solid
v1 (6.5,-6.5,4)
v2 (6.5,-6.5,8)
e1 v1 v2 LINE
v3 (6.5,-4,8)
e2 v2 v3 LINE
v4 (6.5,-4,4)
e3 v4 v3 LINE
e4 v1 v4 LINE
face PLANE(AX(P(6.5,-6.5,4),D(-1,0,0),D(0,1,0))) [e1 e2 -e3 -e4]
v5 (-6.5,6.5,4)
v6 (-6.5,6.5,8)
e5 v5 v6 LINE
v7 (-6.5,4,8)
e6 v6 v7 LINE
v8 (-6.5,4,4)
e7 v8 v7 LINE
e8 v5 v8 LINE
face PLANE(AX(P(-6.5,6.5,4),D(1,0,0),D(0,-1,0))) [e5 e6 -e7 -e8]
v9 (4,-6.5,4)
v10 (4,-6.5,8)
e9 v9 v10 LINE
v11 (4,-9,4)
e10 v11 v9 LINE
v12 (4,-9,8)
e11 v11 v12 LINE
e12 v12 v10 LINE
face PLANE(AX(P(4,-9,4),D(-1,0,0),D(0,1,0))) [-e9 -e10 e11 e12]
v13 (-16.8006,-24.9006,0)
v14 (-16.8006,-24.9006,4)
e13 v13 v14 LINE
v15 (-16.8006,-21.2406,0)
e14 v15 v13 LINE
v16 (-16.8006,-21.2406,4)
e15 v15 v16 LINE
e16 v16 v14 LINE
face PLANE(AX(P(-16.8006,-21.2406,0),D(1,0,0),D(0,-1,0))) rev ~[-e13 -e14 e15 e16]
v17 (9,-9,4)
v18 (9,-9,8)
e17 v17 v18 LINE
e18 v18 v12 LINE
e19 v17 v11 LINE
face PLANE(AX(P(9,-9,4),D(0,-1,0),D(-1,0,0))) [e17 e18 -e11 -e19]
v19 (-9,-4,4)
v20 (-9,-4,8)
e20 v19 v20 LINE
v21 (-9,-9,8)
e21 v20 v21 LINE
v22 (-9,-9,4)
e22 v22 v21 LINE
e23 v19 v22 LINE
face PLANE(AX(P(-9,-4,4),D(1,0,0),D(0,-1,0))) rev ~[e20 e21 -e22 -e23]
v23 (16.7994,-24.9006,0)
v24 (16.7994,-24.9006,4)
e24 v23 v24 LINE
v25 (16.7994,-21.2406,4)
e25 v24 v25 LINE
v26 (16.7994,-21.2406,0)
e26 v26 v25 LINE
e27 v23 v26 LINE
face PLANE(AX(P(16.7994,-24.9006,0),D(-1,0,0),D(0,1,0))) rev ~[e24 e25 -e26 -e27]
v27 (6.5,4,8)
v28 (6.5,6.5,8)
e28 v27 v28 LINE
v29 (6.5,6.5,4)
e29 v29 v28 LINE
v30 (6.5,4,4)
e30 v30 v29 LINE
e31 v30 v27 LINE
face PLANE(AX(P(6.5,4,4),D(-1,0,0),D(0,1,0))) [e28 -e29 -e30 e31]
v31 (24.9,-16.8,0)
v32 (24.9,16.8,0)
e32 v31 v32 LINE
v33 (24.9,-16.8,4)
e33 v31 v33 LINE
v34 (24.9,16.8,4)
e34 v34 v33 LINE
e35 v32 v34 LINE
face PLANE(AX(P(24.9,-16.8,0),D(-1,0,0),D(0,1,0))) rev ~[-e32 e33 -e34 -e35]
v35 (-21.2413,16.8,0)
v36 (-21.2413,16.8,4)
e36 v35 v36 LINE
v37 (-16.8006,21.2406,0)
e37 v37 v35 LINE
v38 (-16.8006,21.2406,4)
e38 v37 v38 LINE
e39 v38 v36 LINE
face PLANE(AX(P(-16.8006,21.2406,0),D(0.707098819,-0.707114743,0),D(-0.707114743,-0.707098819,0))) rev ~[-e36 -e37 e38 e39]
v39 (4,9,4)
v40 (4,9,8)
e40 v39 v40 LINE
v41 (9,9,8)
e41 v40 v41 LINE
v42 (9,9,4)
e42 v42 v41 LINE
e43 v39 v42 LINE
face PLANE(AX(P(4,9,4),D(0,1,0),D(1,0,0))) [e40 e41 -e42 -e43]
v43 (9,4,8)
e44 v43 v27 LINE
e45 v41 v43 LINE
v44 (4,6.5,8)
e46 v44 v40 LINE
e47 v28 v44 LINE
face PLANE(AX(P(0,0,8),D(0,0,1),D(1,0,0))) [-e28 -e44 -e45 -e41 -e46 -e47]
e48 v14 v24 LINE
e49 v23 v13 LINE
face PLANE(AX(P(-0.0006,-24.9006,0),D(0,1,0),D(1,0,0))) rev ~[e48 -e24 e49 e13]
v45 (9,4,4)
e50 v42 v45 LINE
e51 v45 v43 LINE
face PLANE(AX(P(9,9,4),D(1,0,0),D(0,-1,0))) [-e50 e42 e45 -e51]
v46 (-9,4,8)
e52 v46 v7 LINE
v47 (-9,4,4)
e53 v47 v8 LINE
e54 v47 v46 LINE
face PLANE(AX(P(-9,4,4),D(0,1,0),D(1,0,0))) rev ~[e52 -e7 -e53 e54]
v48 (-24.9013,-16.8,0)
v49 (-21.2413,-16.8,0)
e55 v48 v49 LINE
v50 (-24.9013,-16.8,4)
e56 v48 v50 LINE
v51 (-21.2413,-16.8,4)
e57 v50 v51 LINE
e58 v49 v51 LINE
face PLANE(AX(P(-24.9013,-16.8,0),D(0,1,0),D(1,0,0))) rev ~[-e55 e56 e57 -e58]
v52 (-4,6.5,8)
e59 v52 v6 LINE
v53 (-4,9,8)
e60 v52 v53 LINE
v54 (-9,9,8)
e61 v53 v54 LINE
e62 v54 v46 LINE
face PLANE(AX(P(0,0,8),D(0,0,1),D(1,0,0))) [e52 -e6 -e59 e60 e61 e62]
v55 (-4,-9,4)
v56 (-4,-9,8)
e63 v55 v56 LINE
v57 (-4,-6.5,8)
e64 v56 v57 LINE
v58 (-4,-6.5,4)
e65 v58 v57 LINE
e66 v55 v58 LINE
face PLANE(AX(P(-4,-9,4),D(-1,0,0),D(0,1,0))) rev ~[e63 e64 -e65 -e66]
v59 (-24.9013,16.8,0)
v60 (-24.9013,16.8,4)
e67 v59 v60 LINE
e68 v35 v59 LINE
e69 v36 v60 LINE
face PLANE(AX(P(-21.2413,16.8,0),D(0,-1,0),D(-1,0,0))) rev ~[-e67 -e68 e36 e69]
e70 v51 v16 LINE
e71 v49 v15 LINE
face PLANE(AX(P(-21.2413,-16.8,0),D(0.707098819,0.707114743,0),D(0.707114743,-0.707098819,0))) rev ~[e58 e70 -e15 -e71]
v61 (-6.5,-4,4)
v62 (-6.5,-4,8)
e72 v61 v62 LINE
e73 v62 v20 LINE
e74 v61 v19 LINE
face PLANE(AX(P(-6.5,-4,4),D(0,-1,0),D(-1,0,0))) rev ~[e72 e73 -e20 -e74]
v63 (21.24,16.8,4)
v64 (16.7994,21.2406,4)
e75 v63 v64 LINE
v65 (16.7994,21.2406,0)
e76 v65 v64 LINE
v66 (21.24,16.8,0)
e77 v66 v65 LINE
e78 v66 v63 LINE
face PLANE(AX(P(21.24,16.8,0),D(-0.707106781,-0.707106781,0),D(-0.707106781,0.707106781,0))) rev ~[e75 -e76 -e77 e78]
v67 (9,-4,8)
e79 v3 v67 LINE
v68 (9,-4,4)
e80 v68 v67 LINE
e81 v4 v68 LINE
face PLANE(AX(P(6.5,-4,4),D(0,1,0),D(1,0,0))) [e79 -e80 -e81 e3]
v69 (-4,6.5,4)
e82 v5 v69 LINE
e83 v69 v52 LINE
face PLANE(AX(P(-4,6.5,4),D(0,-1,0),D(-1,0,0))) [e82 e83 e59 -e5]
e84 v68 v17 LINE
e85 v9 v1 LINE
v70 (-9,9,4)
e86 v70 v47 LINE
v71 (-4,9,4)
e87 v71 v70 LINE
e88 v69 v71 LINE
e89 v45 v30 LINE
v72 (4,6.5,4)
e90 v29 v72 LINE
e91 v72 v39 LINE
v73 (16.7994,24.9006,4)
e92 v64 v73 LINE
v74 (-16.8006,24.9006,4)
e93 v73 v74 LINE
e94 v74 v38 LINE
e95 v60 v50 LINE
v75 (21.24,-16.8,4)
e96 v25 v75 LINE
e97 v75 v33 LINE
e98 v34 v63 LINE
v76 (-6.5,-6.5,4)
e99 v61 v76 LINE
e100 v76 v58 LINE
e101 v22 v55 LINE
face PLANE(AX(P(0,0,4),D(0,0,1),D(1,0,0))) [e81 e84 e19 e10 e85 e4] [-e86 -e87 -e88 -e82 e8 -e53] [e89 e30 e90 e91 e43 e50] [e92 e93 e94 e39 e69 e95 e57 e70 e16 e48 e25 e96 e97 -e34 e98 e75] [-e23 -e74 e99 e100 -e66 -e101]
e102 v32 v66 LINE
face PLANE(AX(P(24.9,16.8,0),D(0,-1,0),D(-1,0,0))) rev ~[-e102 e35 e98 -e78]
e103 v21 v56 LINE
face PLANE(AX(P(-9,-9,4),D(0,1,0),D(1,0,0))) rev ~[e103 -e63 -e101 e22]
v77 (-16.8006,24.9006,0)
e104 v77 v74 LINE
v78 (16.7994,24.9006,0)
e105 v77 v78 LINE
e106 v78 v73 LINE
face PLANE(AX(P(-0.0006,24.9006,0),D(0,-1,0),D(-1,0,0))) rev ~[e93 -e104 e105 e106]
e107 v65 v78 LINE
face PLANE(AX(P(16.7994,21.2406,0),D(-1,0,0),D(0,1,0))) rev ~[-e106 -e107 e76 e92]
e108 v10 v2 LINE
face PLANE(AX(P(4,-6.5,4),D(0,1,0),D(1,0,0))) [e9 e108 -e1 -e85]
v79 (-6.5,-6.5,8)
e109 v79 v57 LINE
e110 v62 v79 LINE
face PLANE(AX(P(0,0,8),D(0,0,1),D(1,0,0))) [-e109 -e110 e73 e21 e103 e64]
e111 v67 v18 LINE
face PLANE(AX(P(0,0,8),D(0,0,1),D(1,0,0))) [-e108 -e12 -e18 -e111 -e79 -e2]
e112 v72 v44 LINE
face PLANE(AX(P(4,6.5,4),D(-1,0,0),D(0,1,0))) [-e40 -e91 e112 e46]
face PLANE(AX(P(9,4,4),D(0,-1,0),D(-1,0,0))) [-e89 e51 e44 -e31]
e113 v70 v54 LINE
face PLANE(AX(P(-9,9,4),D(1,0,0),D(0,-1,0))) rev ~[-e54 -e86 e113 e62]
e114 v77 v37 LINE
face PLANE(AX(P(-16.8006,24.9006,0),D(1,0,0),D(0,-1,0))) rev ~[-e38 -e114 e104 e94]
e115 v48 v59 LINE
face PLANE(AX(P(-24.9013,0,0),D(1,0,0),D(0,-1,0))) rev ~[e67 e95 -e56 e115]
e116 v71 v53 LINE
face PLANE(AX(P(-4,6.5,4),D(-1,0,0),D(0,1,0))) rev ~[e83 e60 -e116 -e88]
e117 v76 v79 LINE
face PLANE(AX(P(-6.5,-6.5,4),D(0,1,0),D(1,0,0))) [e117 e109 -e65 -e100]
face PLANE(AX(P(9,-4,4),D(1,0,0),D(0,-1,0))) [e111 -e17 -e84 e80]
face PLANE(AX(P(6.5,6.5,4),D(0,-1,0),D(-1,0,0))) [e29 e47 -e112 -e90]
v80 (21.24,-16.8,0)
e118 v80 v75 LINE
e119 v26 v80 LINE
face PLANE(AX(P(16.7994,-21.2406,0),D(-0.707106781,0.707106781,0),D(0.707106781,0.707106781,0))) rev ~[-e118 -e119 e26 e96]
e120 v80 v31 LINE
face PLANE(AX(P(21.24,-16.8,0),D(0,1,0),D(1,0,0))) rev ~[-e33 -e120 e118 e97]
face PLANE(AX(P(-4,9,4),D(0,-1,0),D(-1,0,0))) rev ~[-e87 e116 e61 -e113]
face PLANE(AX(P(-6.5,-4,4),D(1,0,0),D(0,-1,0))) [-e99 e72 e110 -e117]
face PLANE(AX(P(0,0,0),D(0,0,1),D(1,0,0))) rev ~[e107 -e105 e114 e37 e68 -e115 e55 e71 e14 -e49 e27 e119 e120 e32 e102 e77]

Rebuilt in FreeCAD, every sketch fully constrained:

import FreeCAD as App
import Part
import Sketcher

doc = App.newDocument("Part")
params = doc.addObject("Spreadsheet::Sheet", "Params")
for row, (alias, value) in enumerate([
    ("sketch1_width", "33.6 mm"),
    ("sketch1_width2", "3.66 mm"),
    ("sketch1_length", "6.28 mm"),
    ("pad1_length", "4 mm"),
    ("sketch2_width", "5 mm"),
    ("pad2_length", "4 mm"),
], start=1):
    params.set(f"A{row}", alias)
    params.set(f"B{row}", "=" + value)
    params.setAlias(f"B{row}", alias)

body = doc.addObject("PartDesign::Body", "Body")

sketch1 = body.newObject("Sketcher::SketchObject", "Sketch")
sketch1.AttachmentSupport = (doc.getObject("XY_Plane"), [""])
sketch1.MapMode = "FlatFace"
sketch1.addGeometry(Part.LineSegment(App.Vector(24.9, -16.8, 0), App.Vector(24.9, 16.8, 0)), False)
sketch1.addGeometry(Part.LineSegment(App.Vector(24.9, 16.8, 0), App.Vector(21.24, 16.8, 0)), False)
sketch1.addGeometry(Part.LineSegment(App.Vector(21.24, 16.8, 0), App.Vector(16.7994, 21.2406, 0)), False)
sketch1.addGeometry(Part.LineSegment(App.Vector(16.7994, 21.2406, 0), App.Vector(16.7994, 24.9006, 0)), False)
sketch1.addGeometry(Part.LineSegment(App.Vector(16.7994, 24.9006, 0), App.Vector(-16.8006, 24.9006, 0)), False)
sketch1.addGeometry(Part.LineSegment(App.Vector(-16.8006, 24.9006, 0), App.Vector(-16.8006, 21.2406, 0)), False)
sketch1.addGeometry(Part.LineSegment(App.Vector(-16.8006, 21.2406, 0), App.Vector(-21.2413, 16.8, 0)), False)
sketch1.addGeometry(Part.LineSegment(App.Vector(-21.2413, 16.8, 0), App.Vector(-24.9013, 16.8, 0)), False)
sketch1.addGeometry(Part.LineSegment(App.Vector(-24.9013, 16.8, 0), App.Vector(-24.9013, -16.8, 0)), False)
sketch1.addGeometry(Part.LineSegment(App.Vector(-24.9013, -16.8, 0), App.Vector(-21.2413, -16.8, 0)), False)
sketch1.addGeometry(Part.LineSegment(App.Vector(-21.2413, -16.8, 0), App.Vector(-16.8006, -21.2406, 0)), False)
sketch1.addGeometry(Part.LineSegment(App.Vector(-16.8006, -21.2406, 0), App.Vector(-16.8006, -24.9006, 0)), False)
sketch1.addGeometry(Part.LineSegment(App.Vector(-16.8006, -24.9006, 0), App.Vector(16.7994, -24.9006, 0)), False)
sketch1.addGeometry(Part.LineSegment(App.Vector(16.7994, -24.9006, 0), App.Vector(16.7994, -21.2406, 0)), False)
sketch1.addGeometry(Part.LineSegment(App.Vector(16.7994, -21.2406, 0), App.Vector(21.24, -16.8, 0)), False)
sketch1.addGeometry(Part.LineSegment(App.Vector(21.24, -16.8, 0), App.Vector(24.9, -16.8, 0)), False)
sketch1.addConstraint(Sketcher.Constraint("Coincident", 0, 2, 1, 1))
sketch1.addConstraint(Sketcher.Constraint("Coincident", 1, 2, 2, 1))
sketch1.addConstraint(Sketcher.Constraint("Coincident", 2, 2, 3, 1))
sketch1.addConstraint(Sketcher.Constraint("Coincident", 3, 2, 4, 1))
sketch1.addConstraint(Sketcher.Constraint("Coincident", 4, 2, 5, 1))
sketch1.addConstraint(Sketcher.Constraint("Coincident", 5, 2, 6, 1))
sketch1.addConstraint(Sketcher.Constraint("Coincident", 6, 2, 7, 1))
sketch1.addConstraint(Sketcher.Constraint("Coincident", 7, 2, 8, 1))
sketch1.addConstraint(Sketcher.Constraint("Coincident", 8, 2, 9, 1))
sketch1.addConstraint(Sketcher.Constraint("Coincident", 9, 2, 10, 1))
sketch1.addConstraint(Sketcher.Constraint("Coincident", 10, 2, 11, 1))
sketch1.addConstraint(Sketcher.Constraint("Coincident", 11, 2, 12, 1))
sketch1.addConstraint(Sketcher.Constraint("Coincident", 12, 2, 13, 1))
sketch1.addConstraint(Sketcher.Constraint("Coincident", 13, 2, 14, 1))
sketch1.addConstraint(Sketcher.Constraint("Coincident", 14, 2, 15, 1))
sketch1.addConstraint(Sketcher.Constraint("Coincident", 15, 2, 0, 1))
sketch1.addConstraint(Sketcher.Constraint("Vertical", 0))
sketch1.addConstraint(Sketcher.Constraint("Horizontal", 1))
sketch1.addConstraint(Sketcher.Constraint("Vertical", 3))
sketch1.addConstraint(Sketcher.Constraint("Horizontal", 4))
sketch1.addConstraint(Sketcher.Constraint("Vertical", 5))
sketch1.addConstraint(Sketcher.Constraint("Horizontal", 7))
sketch1.addConstraint(Sketcher.Constraint("Vertical", 8))
sketch1.addConstraint(Sketcher.Constraint("Horizontal", 9))
sketch1.addConstraint(Sketcher.Constraint("Vertical", 11))
sketch1.addConstraint(Sketcher.Constraint("Horizontal", 12))
sketch1.addConstraint(Sketcher.Constraint("Vertical", 13))
sketch1.addConstraint(Sketcher.Constraint("Horizontal", 15))
sketch1.addConstraint(Sketcher.Constraint("Symmetric", 6, 2, 9, 2, -1))
sketch1.addConstraint(Sketcher.Constraint("Symmetric", 5, 2, 10, 2, -1))
sketch1.addConstraint(Sketcher.Constraint("Symmetric", 3, 2, 12, 2, -1))
sketch1.addConstraint(Sketcher.Constraint("Symmetric", 1, 2, 14, 2, -1))
sketch1.addConstraint(Sketcher.Constraint("Perpendicular", 2, 6))
sketch1.addConstraint(Sketcher.Constraint("Perpendicular", 6, 10))
sketch1.addConstraint(Sketcher.Constraint("Perpendicular", 10, 14))
sketch1.addConstraint(Sketcher.Constraint("Horizontal", 2, 2, 5, 2))
sketch1.addConstraint(Sketcher.Constraint("Horizontal", 1, 2, 6, 2))
sketch1.addConstraint(Sketcher.Constraint("Equal", 1, 7))
sketch1.addConstraint(Sketcher.Constraint("Equal", 12, 0))
sketch1.addConstraint(Sketcher.Constraint("Equal", 15, 3))
sketch1.addConstraint(Sketcher.Constraint("DistanceX", 4, 2, 4, 1, 33.6))
sketch1.addConstraint(Sketcher.Constraint("DistanceX", 1, 2, 1, 1, 3.66))
sketch1.addConstraint(Sketcher.Constraint("DistanceX", -1, 1, 0, 2, 24.9))
sketch1.addConstraint(Sketcher.Constraint("Distance", 2, 6.28))
sketch1.setExpression("Constraints[40]", "Params.sketch1_width")
sketch1.setExpression("Constraints[41]", "Params.sketch1_width2")
sketch1.setExpression("Constraints[43]", "Params.sketch1_length")
pad1 = body.newObject("PartDesign::Pad", "Pad")
pad1.Profile = sketch1
pad1.setExpression("Length", "Params.pad1_length")

sketch2 = body.newObject("Sketcher::SketchObject", "Sketch001")
sketch2.AttachmentSupport = (doc.getObject("XY_Plane"), [""])
sketch2.MapMode = "FlatFace"
sketch2.AttachmentOffset = App.Placement(App.Vector(0, 0, 4), App.Rotation())
sketch2.addGeometry(Part.LineSegment(App.Vector(-4, -6.5, 0), App.Vector(-6.5, -6.5, 0)), False)
sketch2.addGeometry(Part.LineSegment(App.Vector(-6.5, -6.5, 0), App.Vector(-6.5, -4, 0)), False)
sketch2.addGeometry(Part.LineSegment(App.Vector(-6.5, -4, 0), App.Vector(-9, -4, 0)), False)
sketch2.addGeometry(Part.LineSegment(App.Vector(-9, -4, 0), App.Vector(-9, -9, 0)), False)
sketch2.addGeometry(Part.LineSegment(App.Vector(-9, -9, 0), App.Vector(-4, -9, 0)), False)
sketch2.addGeometry(Part.LineSegment(App.Vector(-4, -9, 0), App.Vector(-4, -6.5, 0)), False)
sketch2.addGeometry(Part.LineSegment(App.Vector(6.5, -6.5, 0), App.Vector(4, -6.5, 0)), False)
sketch2.addGeometry(Part.LineSegment(App.Vector(4, -6.5, 0), App.Vector(4, -9, 0)), False)
sketch2.addGeometry(Part.LineSegment(App.Vector(4, -9, 0), App.Vector(9, -9, 0)), False)
sketch2.addGeometry(Part.LineSegment(App.Vector(9, -9, 0), App.Vector(9, -4, 0)), False)
sketch2.addGeometry(Part.LineSegment(App.Vector(9, -4, 0), App.Vector(6.5, -4, 0)), False)
sketch2.addGeometry(Part.LineSegment(App.Vector(6.5, -4, 0), App.Vector(6.5, -6.5, 0)), False)
sketch2.addGeometry(Part.LineSegment(App.Vector(-9, 4, 0), App.Vector(-6.5, 4, 0)), False)
sketch2.addGeometry(Part.LineSegment(App.Vector(-6.5, 4, 0), App.Vector(-6.5, 6.5, 0)), False)
sketch2.addGeometry(Part.LineSegment(App.Vector(-6.5, 6.5, 0), App.Vector(-4, 6.5, 0)), False)
sketch2.addGeometry(Part.LineSegment(App.Vector(-4, 6.5, 0), App.Vector(-4, 9, 0)), False)
sketch2.addGeometry(Part.LineSegment(App.Vector(-4, 9, 0), App.Vector(-9, 9, 0)), False)
sketch2.addGeometry(Part.LineSegment(App.Vector(-9, 9, 0), App.Vector(-9, 4, 0)), False)
sketch2.addGeometry(Part.LineSegment(App.Vector(6.5, 6.5, 0), App.Vector(6.5, 4, 0)), False)
sketch2.addGeometry(Part.LineSegment(App.Vector(6.5, 4, 0), App.Vector(9, 4, 0)), False)
sketch2.addGeometry(Part.LineSegment(App.Vector(9, 4, 0), App.Vector(9, 9, 0)), False)
sketch2.addGeometry(Part.LineSegment(App.Vector(9, 9, 0), App.Vector(4, 9, 0)), False)
sketch2.addGeometry(Part.LineSegment(App.Vector(4, 9, 0), App.Vector(4, 6.5, 0)), False)
sketch2.addGeometry(Part.LineSegment(App.Vector(4, 6.5, 0), App.Vector(6.5, 6.5, 0)), False)
sketch2.addConstraint(Sketcher.Constraint("Coincident", 0, 2, 1, 1))
sketch2.addConstraint(Sketcher.Constraint("Coincident", 1, 2, 2, 1))
sketch2.addConstraint(Sketcher.Constraint("Coincident", 2, 2, 3, 1))
sketch2.addConstraint(Sketcher.Constraint("Coincident", 3, 2, 4, 1))
sketch2.addConstraint(Sketcher.Constraint("Coincident", 4, 2, 5, 1))
sketch2.addConstraint(Sketcher.Constraint("Coincident", 5, 2, 0, 1))
sketch2.addConstraint(Sketcher.Constraint("Coincident", 6, 2, 7, 1))
sketch2.addConstraint(Sketcher.Constraint("Coincident", 7, 2, 8, 1))
sketch2.addConstraint(Sketcher.Constraint("Coincident", 8, 2, 9, 1))
sketch2.addConstraint(Sketcher.Constraint("Coincident", 9, 2, 10, 1))
sketch2.addConstraint(Sketcher.Constraint("Coincident", 10, 2, 11, 1))
sketch2.addConstraint(Sketcher.Constraint("Coincident", 11, 2, 6, 1))
sketch2.addConstraint(Sketcher.Constraint("Coincident", 12, 2, 13, 1))
sketch2.addConstraint(Sketcher.Constraint("Coincident", 13, 2, 14, 1))
sketch2.addConstraint(Sketcher.Constraint("Coincident", 14, 2, 15, 1))
sketch2.addConstraint(Sketcher.Constraint("Coincident", 15, 2, 16, 1))
sketch2.addConstraint(Sketcher.Constraint("Coincident", 16, 2, 17, 1))
sketch2.addConstraint(Sketcher.Constraint("Coincident", 17, 2, 12, 1))
sketch2.addConstraint(Sketcher.Constraint("Coincident", 18, 2, 19, 1))
sketch2.addConstraint(Sketcher.Constraint("Coincident", 19, 2, 20, 1))
sketch2.addConstraint(Sketcher.Constraint("Coincident", 20, 2, 21, 1))
sketch2.addConstraint(Sketcher.Constraint("Coincident", 21, 2, 22, 1))
sketch2.addConstraint(Sketcher.Constraint("Coincident", 22, 2, 23, 1))
sketch2.addConstraint(Sketcher.Constraint("Coincident", 23, 2, 18, 1))
sketch2.addConstraint(Sketcher.Constraint("Horizontal", 0))
sketch2.addConstraint(Sketcher.Constraint("Vertical", 1))
sketch2.addConstraint(Sketcher.Constraint("Horizontal", 2))
sketch2.addConstraint(Sketcher.Constraint("Vertical", 3))
sketch2.addConstraint(Sketcher.Constraint("Horizontal", 4))
sketch2.addConstraint(Sketcher.Constraint("Vertical", 5))
sketch2.addConstraint(Sketcher.Constraint("Horizontal", 6))
sketch2.addConstraint(Sketcher.Constraint("Vertical", 7))
sketch2.addConstraint(Sketcher.Constraint("Horizontal", 8))
sketch2.addConstraint(Sketcher.Constraint("Vertical", 9))
sketch2.addConstraint(Sketcher.Constraint("Horizontal", 10))
sketch2.addConstraint(Sketcher.Constraint("Vertical", 11))
sketch2.addConstraint(Sketcher.Constraint("Horizontal", 12))
sketch2.addConstraint(Sketcher.Constraint("Vertical", 13))
sketch2.addConstraint(Sketcher.Constraint("Horizontal", 14))
sketch2.addConstraint(Sketcher.Constraint("Vertical", 15))
sketch2.addConstraint(Sketcher.Constraint("Horizontal", 16))
sketch2.addConstraint(Sketcher.Constraint("Vertical", 17))
sketch2.addConstraint(Sketcher.Constraint("Vertical", 18))
sketch2.addConstraint(Sketcher.Constraint("Horizontal", 19))
sketch2.addConstraint(Sketcher.Constraint("Vertical", 20))
sketch2.addConstraint(Sketcher.Constraint("Horizontal", 21))
sketch2.addConstraint(Sketcher.Constraint("Vertical", 22))
sketch2.addConstraint(Sketcher.Constraint("Horizontal", 23))
sketch2.addConstraint(Sketcher.Constraint("Symmetric", 10, 2, 12, 2, -1, 1))
sketch2.addConstraint(Sketcher.Constraint("Symmetric", 6, 2, 14, 2, -1, 1))
sketch2.addConstraint(Sketcher.Constraint("Symmetric", 8, 2, 16, 2, -1, 1))
sketch2.addConstraint(Sketcher.Constraint("Symmetric", 1, 2, 18, 2, -1, 1))
sketch2.addConstraint(Sketcher.Constraint("Symmetric", 3, 2, 20, 2, -1, 1))
sketch2.addConstraint(Sketcher.Constraint("Symmetric", 5, 2, 22, 2, -1, 1))
sketch2.addConstraint(Sketcher.Constraint("Symmetric", 5, 2, 6, 2, -2))
sketch2.addConstraint(Sketcher.Constraint("Symmetric", 3, 2, 8, 2, -2))
sketch2.addConstraint(Sketcher.Constraint("Symmetric", 1, 2, 10, 2, -2))
sketch2.addConstraint(Sketcher.Constraint("Equal", 0, 2))
sketch2.addConstraint(Sketcher.Constraint("Equal", 23, 1))
sketch2.addConstraint(Sketcher.Constraint("Equal", 21, 3))
sketch2.addConstraint(Sketcher.Constraint("DistanceX", 4, 1, 4, 2, 5.0))
sketch2.addConstraint(Sketcher.Constraint("DistanceY", 1, 2, -1, 1, 4.0))
sketch2.addConstraint(Sketcher.Constraint("DistanceX", 2, 2, -1, 1, 9.0))
sketch2.setExpression("Constraints[60]", "Params.sketch2_width")
pad2 = body.newObject("PartDesign::Pad", "Pad001")
pad2.Profile = sketch2
pad2.setExpression("Length", "Params.pad2_length")

doc.recompute()
